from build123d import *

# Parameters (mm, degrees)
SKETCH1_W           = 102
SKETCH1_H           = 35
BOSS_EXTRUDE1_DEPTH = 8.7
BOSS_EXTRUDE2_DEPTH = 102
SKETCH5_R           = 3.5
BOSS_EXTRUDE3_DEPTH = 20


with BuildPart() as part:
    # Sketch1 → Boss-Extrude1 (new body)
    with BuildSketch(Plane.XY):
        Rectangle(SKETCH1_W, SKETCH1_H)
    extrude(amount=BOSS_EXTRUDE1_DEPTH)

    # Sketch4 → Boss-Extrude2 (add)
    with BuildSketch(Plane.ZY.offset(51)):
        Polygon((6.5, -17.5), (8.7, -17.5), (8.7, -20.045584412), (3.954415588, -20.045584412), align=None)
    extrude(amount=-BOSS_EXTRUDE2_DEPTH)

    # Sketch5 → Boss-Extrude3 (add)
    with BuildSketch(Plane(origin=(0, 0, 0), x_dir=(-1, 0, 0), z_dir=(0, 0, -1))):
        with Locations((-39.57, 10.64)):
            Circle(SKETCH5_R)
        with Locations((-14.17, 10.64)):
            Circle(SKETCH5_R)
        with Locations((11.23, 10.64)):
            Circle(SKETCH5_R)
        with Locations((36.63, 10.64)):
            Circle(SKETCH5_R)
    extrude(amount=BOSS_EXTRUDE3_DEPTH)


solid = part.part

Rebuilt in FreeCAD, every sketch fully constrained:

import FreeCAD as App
import Part
import Sketcher
from FreeCAD import Vector
Q = App.Units.Quantity


def add_polygon(sketch, points):
    """Adds a closed chain of lines whose ends are joined by coincident constraints."""
    first, n = sketch.GeometryCount, len(points)
    for a, b in zip(points, points[1:] + points[:1]):
        sketch.addGeometry(Part.LineSegment(App.Vector(*a, 0), App.Vector(*b, 0)), False)
    for i in range(n):
        sketch.addConstraint(Sketcher.Constraint("Coincident", first + i, 2, first + (i + 1) % n, 1))

doc = App.newDocument("Part")
body = doc.addObject("PartDesign::Body", "Body")

# Sketch on XY plane
sketch1 = body.newObject("Sketcher::SketchObject", "Sketch")
sketch1.AttachmentSupport = (doc.getObject("XY_Plane"), [""])
sketch1.MapMode = "FlatFace"
add_polygon(sketch1, [(-51, 18), (-51, -18), (51, -18), (51, 18)])  # lines 0-3
sketch1.addConstraint([
    Sketcher.Constraint("Vertical", 0),
    Sketcher.Constraint("Horizontal", 1),
    Sketcher.Constraint("Vertical", 2),
    Sketcher.Constraint("Horizontal", 3),
    Sketcher.Constraint("Symmetric", 0, 2, 2, 2, -1, 1),
    Sketcher.Constraint("DistanceX", 1, 1, 1, 2, Q("102 mm")),
    Sketcher.Constraint("DistanceY", 0, 2, 0, 1, Q("35 mm")),
])
pad1 = body.newObject("PartDesign::Pad", "Pad")
pad1.Profile = sketch1
pad1.Length = 8.7

# Sketch on YZ plane
sketch2 = body.newObject("Sketcher::SketchObject", "Sketch001")
sketch2.AttachmentSupport = (doc.getObject("YZ_Plane"), [""])
sketch2.MapMode = "FlatFace"
sketch2.AttachmentOffset = App.Placement(Vector(0, 0, -51), App.Rotation())
add_polygon(sketch2, [(-17.5, 8.7), (-17.5, 6.5), (-20, 4), (-20, 8.7)])  # lines 0-3
sketch2.addConstraint([
    Sketcher.Constraint("Vertical", 0),
    Sketcher.Constraint("Vertical", 2),
    Sketcher.Constraint("Horizontal", 3),
    Sketcher.Constraint("Angle", 1, Q("-135 deg")),
    Sketcher.Constraint("DistanceY", 0, 2, 0, 1, Q("2.2 mm")),
    Sketcher.Constraint("Distance", 1, Q("3.6 mm")),
    Sketcher.Constraint("DistanceX", 0, 2, -1, 1, Q("17.5 mm")),
    Sketcher.Constraint("DistanceY", -1, 1, 0, 2, Q("6.5 mm")),
])
pad2 = body.newObject("PartDesign::Pad", "Pad001")
pad2.Profile = sketch2
pad2.Length = 102

# Sketch on XY plane
sketch3 = body.newObject("Sketcher::SketchObject", "Sketch002")
sketch3.AttachmentSupport = (doc.getObject("XY_Plane"), [""])
sketch3.MapMode = "FlatFace"
sketch3.addGeometry([
    Part.Circle(Vector(39.6, 10.6, 0), Vector(0, 0, 1), 3.5),
    Part.Circle(Vector(14.2, 10.6, 0), Vector(0, 0, 1), 3.5),
    Part.Circle(Vector(-11.2, 10.6, 0), Vector(0, 0, 1), 3.5),
    Part.Circle(Vector(-36.6, 10.6, 0), Vector(0, 0, 1), 3.5),
], False)
sketch3.addConstraint([
    Sketcher.Constraint("Equal", 0, 1),
    Sketcher.Constraint("Equal", 1, 2),
    Sketcher.Constraint("Equal", 2, 3),
    Sketcher.Constraint("Horizontal", 0, 3, 1, 3),
    Sketcher.Constraint("Horizontal", 1, 3, 2, 3),
    Sketcher.Constraint("Horizontal", 2, 3, 3, 3),
    Sketcher.Constraint("Diameter", 0, Q("7 mm")),
    Sketcher.Constraint("DistanceX", 1, 3, 0, 3, Q("25.4 mm")),
    Sketcher.Constraint("DistanceX", 2, 3, 1, 3, Q("25.4 mm")),
    Sketcher.Constraint("DistanceX", 3, 3, 2, 3, Q("25.4 mm")),
    Sketcher.Constraint("DistanceX", -1, 1, 0, 3, Q("39.57 mm")),
    Sketcher.Constraint("DistanceY", -1, 1, 0, 3, Q("10.64 mm")),
])
pad3 = body.newObject("PartDesign::Pad", "Pad002")
pad3.Profile = sketch3
pad3.Length = 20
pad3.Reversed = True

doc.recompute()
